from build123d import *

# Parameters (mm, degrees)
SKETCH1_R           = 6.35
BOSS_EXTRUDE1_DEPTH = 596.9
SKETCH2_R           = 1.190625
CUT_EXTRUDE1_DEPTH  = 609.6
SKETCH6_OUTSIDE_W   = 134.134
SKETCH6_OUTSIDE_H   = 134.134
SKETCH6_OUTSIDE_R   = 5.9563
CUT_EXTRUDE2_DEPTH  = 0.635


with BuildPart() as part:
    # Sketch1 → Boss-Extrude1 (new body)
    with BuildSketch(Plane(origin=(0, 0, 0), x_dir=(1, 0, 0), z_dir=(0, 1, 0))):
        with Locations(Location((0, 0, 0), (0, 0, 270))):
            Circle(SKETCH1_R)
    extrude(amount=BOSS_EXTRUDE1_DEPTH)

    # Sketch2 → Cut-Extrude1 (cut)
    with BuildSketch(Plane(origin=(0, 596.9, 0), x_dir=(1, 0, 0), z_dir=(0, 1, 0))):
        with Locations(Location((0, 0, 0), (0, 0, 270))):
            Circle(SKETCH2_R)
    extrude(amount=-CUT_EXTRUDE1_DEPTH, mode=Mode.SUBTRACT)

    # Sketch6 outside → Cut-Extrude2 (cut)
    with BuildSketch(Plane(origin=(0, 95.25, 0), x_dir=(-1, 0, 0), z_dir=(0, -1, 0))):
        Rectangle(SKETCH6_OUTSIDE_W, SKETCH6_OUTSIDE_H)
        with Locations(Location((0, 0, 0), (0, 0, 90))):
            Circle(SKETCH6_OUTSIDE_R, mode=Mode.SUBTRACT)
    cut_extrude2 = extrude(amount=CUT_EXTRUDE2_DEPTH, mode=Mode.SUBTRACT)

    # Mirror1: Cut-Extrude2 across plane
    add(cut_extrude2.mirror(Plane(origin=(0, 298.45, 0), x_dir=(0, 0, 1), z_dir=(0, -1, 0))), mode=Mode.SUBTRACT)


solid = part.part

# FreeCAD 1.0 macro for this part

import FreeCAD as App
import Part
import Sketcher
Q = App.Units.Quantity

doc = App.newDocument("Part")
body = doc.addObject("PartDesign::Body", "Body")

sketch1 = body.newObject("Sketcher::SketchObject", "Sketch")
sketch1.AttachmentSupport = (doc.getObject("XZ_Plane"), [""])
sketch1.MapMode = "FlatFace"
sketch1.addGeometry(Part.Circle(App.Vector(0, 0, 0), App.Vector(0, 0, 1), 6), False)
sketch1.addConstraint([
    Sketcher.Constraint("Coincident", 0, 3, -1, 1),
    Sketcher.Constraint("Diameter", 0, Q("0.5 in")),
])
pad1 = body.newObject("PartDesign::Pad", "Pad")
pad1.Profile = sketch1
pad1.Length = Q("23.5 in")
pad1.Reversed = True

sketch2 = body.newObject("Sketcher::SketchObject", "Sketch001")
sketch2.AttachmentSupport = (doc.getObject("XZ_Plane"), [""])
sketch2.MapMode = "FlatFace"
sketch2.AttachmentOffset = App.Placement(App.Vector(0, 0, -23.5 * 25.4), App.Rotation())
sketch2.addGeometry(Part.Circle(App.Vector(0, 0, 0), App.Vector(0, 0, 1), 1.2), False)
sketch2.addConstraint([
    Sketcher.Constraint("Coincident", 0, 3, -1, 1),
    Sketcher.Constraint("Diameter", 0, Q("0.09375 in")),
])
pocket1 = body.newObject("PartDesign::Pocket", "Pocket")
pocket1.Profile = sketch2
pocket1.Length = Q("24 in")
pocket1.Reversed = True

sketch3 = body.newObject("Sketcher::SketchObject", "Sketch002")
sketch3.AttachmentSupport = (doc.getObject("XZ_Plane"), [""])
sketch3.MapMode = "FlatFace"
sketch3.AttachmentOffset = App.Placement(App.Vector(0, 0, -3.75 * 25.4), App.Rotation())
sketch3.addGeometry([
    Part.LineSegment(App.Vector(67, -67, 0), App.Vector(67, 67, 0)),
    Part.LineSegment(App.Vector(67, 67, 0), App.Vector(-67, 67, 0)),
    Part.LineSegment(App.Vector(-67, 67, 0), App.Vector(-67, -67, 0)),
    Part.LineSegment(App.Vector(-67, -67, 0), App.Vector(67, -67, 0)),
    Part.Circle(App.Vector(0, 0, 0), App.Vector(0, 0, 1), 6),
], False)
sketch3.addConstraint([
    Sketcher.Constraint("Coincident", 0, 2, 1, 1),
    Sketcher.Constraint("Coincident", 1, 2, 2, 1),
    Sketcher.Constraint("Coincident", 2, 2, 3, 1),
    Sketcher.Constraint("Coincident", 3, 2, 0, 1),
    Sketcher.Constraint("Vertical", 0),
    Sketcher.Constraint("Horizontal", 1),
    Sketcher.Constraint("Vertical", 2),
    Sketcher.Constraint("Horizontal", 3),
    Sketcher.Constraint("Coincident", 4, 3, -1, 1),
    Sketcher.Constraint("Symmetric", 0, 2, 2, 2, -1, 1),
    Sketcher.Constraint("Equal", 3, 0),
    Sketcher.Constraint("Diameter", 4, Q("0.469 in")),
    Sketcher.Constraint("DistanceX", 1, 2, 1, 1, 134.134),
])
pocket2 = body.newObject("PartDesign::Pocket", "Pocket001")
pocket2.Profile = sketch3
pocket2.Length = Q("0.025 in")
pocket2.Reversed = True
doc.recompute()

datumplane = body.newObject("PartDesign::Plane", "DatumPlane")
datumplane.AttachmentSupport = (doc.getObject("XZ_Plane"), [""])
datumplane.MapMode = "FlatFace"
datumplane.AttachmentOffset = App.Placement(App.Vector(0, 0, -11.75 * 25.4), App.Rotation())
mirrored = body.newObject("PartDesign::Mirrored", "Mirrored")
mirrored.Originals = [pocket2]
mirrored.MirrorPlane = (datumplane, [""])
body.Tip = mirrored

doc.recompute()
